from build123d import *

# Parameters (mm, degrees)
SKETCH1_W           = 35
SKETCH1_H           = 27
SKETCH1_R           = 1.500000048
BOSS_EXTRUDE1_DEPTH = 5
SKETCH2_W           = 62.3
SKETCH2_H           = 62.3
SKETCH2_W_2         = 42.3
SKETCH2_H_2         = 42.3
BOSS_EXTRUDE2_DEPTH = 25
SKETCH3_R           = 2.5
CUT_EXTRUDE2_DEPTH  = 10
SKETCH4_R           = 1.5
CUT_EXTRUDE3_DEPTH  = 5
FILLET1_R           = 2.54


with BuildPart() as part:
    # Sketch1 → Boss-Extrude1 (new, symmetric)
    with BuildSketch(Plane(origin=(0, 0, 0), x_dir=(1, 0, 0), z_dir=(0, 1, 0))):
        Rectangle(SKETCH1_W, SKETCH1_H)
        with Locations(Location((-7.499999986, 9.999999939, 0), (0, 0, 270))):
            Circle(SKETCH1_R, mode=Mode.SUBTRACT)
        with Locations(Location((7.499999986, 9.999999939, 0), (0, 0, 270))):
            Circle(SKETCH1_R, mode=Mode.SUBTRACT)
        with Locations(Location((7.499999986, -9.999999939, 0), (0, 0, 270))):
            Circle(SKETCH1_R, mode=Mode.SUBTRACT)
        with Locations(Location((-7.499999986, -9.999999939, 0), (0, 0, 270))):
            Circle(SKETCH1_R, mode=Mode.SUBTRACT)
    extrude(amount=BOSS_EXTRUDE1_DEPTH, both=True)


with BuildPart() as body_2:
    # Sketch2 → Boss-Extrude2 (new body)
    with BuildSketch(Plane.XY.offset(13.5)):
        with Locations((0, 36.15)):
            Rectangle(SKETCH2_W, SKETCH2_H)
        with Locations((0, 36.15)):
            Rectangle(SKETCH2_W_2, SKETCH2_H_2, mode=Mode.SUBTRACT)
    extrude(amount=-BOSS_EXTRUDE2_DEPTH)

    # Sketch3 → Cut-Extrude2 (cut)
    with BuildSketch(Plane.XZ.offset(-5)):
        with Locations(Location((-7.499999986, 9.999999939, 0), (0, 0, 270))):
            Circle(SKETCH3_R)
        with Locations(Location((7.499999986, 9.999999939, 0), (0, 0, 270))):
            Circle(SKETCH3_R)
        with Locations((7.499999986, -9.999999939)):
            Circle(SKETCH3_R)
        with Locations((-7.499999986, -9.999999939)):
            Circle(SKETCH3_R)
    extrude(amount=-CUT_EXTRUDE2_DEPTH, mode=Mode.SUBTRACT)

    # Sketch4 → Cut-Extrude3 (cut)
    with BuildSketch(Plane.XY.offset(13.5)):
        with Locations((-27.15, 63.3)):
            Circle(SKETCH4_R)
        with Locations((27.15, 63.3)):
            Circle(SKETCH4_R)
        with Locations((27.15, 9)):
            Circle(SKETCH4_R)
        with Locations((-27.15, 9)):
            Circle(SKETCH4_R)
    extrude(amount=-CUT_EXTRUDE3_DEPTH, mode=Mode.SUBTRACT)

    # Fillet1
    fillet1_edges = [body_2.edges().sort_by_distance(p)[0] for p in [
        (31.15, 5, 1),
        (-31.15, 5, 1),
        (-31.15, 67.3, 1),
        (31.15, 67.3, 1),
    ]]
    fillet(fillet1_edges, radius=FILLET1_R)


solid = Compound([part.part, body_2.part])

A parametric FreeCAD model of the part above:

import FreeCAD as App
import Part
import Sketcher
Q = App.Units.Quantity


def edges_at(feature, points):
    """Names of the edges that pass closest to the given points."""
    edges = feature.Shape.Edges
    near = lambda p: min(range(len(edges)), key=lambda i: edges[i].distToShape(Part.Vertex(*p))[0])
    return sorted({f"Edge{near(p) + 1}" for p in points})


def add_polygon(sketch, points):
    """Adds a closed chain of lines whose ends are joined by coincident constraints."""
    first, n = sketch.GeometryCount, len(points)
    for a, b in zip(points, points[1:] + points[:1]):
        sketch.addGeometry(Part.LineSegment(App.Vector(*a, 0), App.Vector(*b, 0)), False)
    for i in range(n):
        sketch.addConstraint(Sketcher.Constraint("Coincident", first + i, 2, first + (i + 1) % n, 1))

doc = App.newDocument("Part")
body = doc.addObject("PartDesign::Body", "Body")

sketch1 = body.newObject("Sketcher::SketchObject", "Sketch")
sketch1.AttachmentSupport = (doc.getObject("XZ_Plane"), [""])
sketch1.MapMode = "FlatFace"
add_polygon(sketch1, [(-17.5, -13.5), (-17.5, 13.5), (17.5, 13.5), (17.5, -13.5)])
sketch1.addGeometry(Part.Circle(App.Vector(-7.5, 10, 0), App.Vector(0, 0, 1), 1.5), False)
sketch1.addGeometry(Part.Circle(App.Vector(7.5, 10, 0), App.Vector(0, 0, 1), 1.5), False)
sketch1.addGeometry(Part.Circle(App.Vector(-7.5, -10, 0), App.Vector(0, 0, 1), 1.5), False)
sketch1.addGeometry(Part.Circle(App.Vector(7.5, -10, 0), App.Vector(0, 0, 1), 1.5), False)
sketch1.addConstraint([
    Sketcher.Constraint("Vertical", 0),
    Sketcher.Constraint("Horizontal", 1),
    Sketcher.Constraint("Vertical", 2),
    Sketcher.Constraint("Horizontal", 3),
    Sketcher.Constraint("Equal", 4, 5),
    Sketcher.Constraint("Equal", 5, 6),
    Sketcher.Constraint("Equal", 6, 7),
    Sketcher.Constraint("Symmetric", 5, 3, 6, 3, -1, 1),
    Sketcher.Constraint("Symmetric", 4, 3, 7, 3, -1, 1),
    Sketcher.Constraint("Symmetric", 0, 2, 2, 2, -1, 1),
    Sketcher.Constraint("Symmetric", 4, 3, 5, 3, -2),
    Sketcher.Constraint("Diameter", 4, Q("3 mm")),
    Sketcher.Constraint("DistanceX", 1, 1, 1, 2, Q("35 mm")),
    Sketcher.Constraint("DistanceY", 0, 1, 0, 2, Q("27 mm")),
    Sketcher.Constraint("DistanceY", -1, 1, 4, 3, Q("10 mm")),
    Sketcher.Constraint("DistanceX", 4, 3, 5, 3, Q("15 mm")),
])
pad1 = body.newObject("PartDesign::Pad", "Pad")
pad1.Profile = sketch1
pad1.Length = 10
pad1.Midplane = True
body2 = doc.addObject("PartDesign::Body", "Body001")

sketch2 = body2.newObject("Sketcher::SketchObject", "Sketch001")
sketch2.AttachmentSupport = (doc.getObject("XY_Plane001"), [""])
sketch2.MapMode = "FlatFace"
sketch2.AttachmentOffset = App.Placement(App.Vector(0, 0, 13.5), App.Rotation())
add_polygon(sketch2, [(-31, 67), (-31, 5), (31, 5), (31, 67)])
add_polygon(sketch2, [(21, 15), (-21, 15), (-21, 57), (21, 57)])
sketch2.addConstraint([
    Sketcher.Constraint("Vertical", 0),
    Sketcher.Constraint("Horizontal", 1),
    Sketcher.Constraint("Vertical", 2),
    Sketcher.Constraint("Horizontal", 3),
    Sketcher.Constraint("Horizontal", 4),
    Sketcher.Constraint("Vertical", 5),
    Sketcher.Constraint("Horizontal", 6),
    Sketcher.Constraint("Vertical", 7),
    Sketcher.Constraint("Equal", 3, 0),
    Sketcher.Constraint("Equal", 6, 5),
    Sketcher.Constraint("DistanceX", 1, 1, 1, 2, Q("62.3 mm")),
    Sketcher.Constraint("DistanceX", 4, 2, 4, 1, Q("42.3 mm")),
    Sketcher.Constraint("DistanceY", -1, 1, 0, 2, Q("5 mm")),
    Sketcher.Constraint("DistanceY", -1, 1, 4, 2, Q("15 mm")),
    Sketcher.Constraint("DistanceX", 0, 2, 4, 2, Q("10 mm")),
    Sketcher.Constraint("DistanceX", 0, 2, -1, 1, Q("31.15 mm")),
])
pad2 = body2.newObject("PartDesign::Pad", "Pad001")
pad2.Profile = sketch2
pad2.Length = 25
pad2.Reversed = True

sketch3 = body2.newObject("Sketcher::SketchObject", "Sketch002")
sketch3.AttachmentSupport = (doc.getObject("XZ_Plane001"), [""])
sketch3.MapMode = "FlatFace"
sketch3.AttachmentOffset = App.Placement(App.Vector(0, 0, -5), App.Rotation())
sketch3.addGeometry([
    Part.Circle(App.Vector(-7.5, 10, 0), App.Vector(0, 0, 1), 2.5),
    Part.Circle(App.Vector(7.5, 10, 0), App.Vector(0, 0, 1), 2.5),
    Part.Circle(App.Vector(7.5, -10, 0), App.Vector(0, 0, 1), 2.5),
    Part.Circle(App.Vector(-7.5, -10, 0), App.Vector(0, 0, 1), 2.5),
], False)
sketch3.addConstraint([
    Sketcher.Constraint("Equal", 0, 1),
    Sketcher.Constraint("Equal", 1, 2),
    Sketcher.Constraint("Equal", 2, 3),
    Sketcher.Constraint("Symmetric", 0, 3, 2, 3, -1, 1),
    Sketcher.Constraint("Symmetric", 1, 3, 3, 3, -1, 1),
    Sketcher.Constraint("Symmetric", 0, 3, 1, 3, -2),
    Sketcher.Constraint("Diameter", 0, Q("5 mm")),
    Sketcher.Constraint("DistanceY", -1, 1, 0, 3, Q("10 mm")),
    Sketcher.Constraint("DistanceX", 0, 3, 1, 3, Q("15 mm")),
])
pocket1 = body2.newObject("PartDesign::Pocket", "Pocket")
pocket1.Profile = sketch3
pocket1.Length = 10

sketch4 = body2.newObject("Sketcher::SketchObject", "Sketch003")
sketch4.AttachmentSupport = (doc.getObject("XY_Plane001"), [""])
sketch4.MapMode = "FlatFace"
sketch4.AttachmentOffset = App.Placement(App.Vector(0, 0, 13.5), App.Rotation())
sketch4.addGeometry([
    Part.Circle(App.Vector(-27.1, 63.3, 0), App.Vector(0, 0, 1), 1.5),
    Part.Circle(App.Vector(27.1, 63.3, 0), App.Vector(0, 0, 1), 1.5),
    Part.Circle(App.Vector(27.1, 9, 0), App.Vector(0, 0, 1), 1.5),
    Part.Circle(App.Vector(-27.1, 9, 0), App.Vector(0, 0, 1), 1.5),
], False)
sketch4.addConstraint([
    Sketcher.Constraint("Equal", 0, 1),
    Sketcher.Constraint("Equal", 1, 2),
    Sketcher.Constraint("Equal", 2, 3),
    Sketcher.Constraint("Symmetric", 0, 3, 1, 3, -2),
    Sketcher.Constraint("Symmetric", 2, 3, 3, 3, -2),
    Sketcher.Constraint("Vertical", 1, 3, 2, 3),
    Sketcher.Constraint("Diameter", 0, Q("3 mm")),
    Sketcher.Constraint("DistanceY", -1, 1, 2, 3, Q("9 mm")),
    Sketcher.Constraint("DistanceY", -1, 1, 0, 3, Q("63.3 mm")),
    Sketcher.Constraint("DistanceX", 0, 3, 1, 3, Q("54.3 mm")),
])
pocket2 = body2.newObject("PartDesign::Pocket", "Pocket001")
pocket2.Profile = sketch4
pocket2.Length = 5
doc.recompute()

fillet = body2.newObject("PartDesign::Fillet", "Fillet")
fillet.Base = (pocket2, edges_at(pocket2, [
    (31.15, 5, 1),
    (-31.15, 5, 1),
    (-31.15, 67.3, 1),
    (31.15, 67.3, 1),
]))
fillet.Radius = 2.54

doc.recompute()
